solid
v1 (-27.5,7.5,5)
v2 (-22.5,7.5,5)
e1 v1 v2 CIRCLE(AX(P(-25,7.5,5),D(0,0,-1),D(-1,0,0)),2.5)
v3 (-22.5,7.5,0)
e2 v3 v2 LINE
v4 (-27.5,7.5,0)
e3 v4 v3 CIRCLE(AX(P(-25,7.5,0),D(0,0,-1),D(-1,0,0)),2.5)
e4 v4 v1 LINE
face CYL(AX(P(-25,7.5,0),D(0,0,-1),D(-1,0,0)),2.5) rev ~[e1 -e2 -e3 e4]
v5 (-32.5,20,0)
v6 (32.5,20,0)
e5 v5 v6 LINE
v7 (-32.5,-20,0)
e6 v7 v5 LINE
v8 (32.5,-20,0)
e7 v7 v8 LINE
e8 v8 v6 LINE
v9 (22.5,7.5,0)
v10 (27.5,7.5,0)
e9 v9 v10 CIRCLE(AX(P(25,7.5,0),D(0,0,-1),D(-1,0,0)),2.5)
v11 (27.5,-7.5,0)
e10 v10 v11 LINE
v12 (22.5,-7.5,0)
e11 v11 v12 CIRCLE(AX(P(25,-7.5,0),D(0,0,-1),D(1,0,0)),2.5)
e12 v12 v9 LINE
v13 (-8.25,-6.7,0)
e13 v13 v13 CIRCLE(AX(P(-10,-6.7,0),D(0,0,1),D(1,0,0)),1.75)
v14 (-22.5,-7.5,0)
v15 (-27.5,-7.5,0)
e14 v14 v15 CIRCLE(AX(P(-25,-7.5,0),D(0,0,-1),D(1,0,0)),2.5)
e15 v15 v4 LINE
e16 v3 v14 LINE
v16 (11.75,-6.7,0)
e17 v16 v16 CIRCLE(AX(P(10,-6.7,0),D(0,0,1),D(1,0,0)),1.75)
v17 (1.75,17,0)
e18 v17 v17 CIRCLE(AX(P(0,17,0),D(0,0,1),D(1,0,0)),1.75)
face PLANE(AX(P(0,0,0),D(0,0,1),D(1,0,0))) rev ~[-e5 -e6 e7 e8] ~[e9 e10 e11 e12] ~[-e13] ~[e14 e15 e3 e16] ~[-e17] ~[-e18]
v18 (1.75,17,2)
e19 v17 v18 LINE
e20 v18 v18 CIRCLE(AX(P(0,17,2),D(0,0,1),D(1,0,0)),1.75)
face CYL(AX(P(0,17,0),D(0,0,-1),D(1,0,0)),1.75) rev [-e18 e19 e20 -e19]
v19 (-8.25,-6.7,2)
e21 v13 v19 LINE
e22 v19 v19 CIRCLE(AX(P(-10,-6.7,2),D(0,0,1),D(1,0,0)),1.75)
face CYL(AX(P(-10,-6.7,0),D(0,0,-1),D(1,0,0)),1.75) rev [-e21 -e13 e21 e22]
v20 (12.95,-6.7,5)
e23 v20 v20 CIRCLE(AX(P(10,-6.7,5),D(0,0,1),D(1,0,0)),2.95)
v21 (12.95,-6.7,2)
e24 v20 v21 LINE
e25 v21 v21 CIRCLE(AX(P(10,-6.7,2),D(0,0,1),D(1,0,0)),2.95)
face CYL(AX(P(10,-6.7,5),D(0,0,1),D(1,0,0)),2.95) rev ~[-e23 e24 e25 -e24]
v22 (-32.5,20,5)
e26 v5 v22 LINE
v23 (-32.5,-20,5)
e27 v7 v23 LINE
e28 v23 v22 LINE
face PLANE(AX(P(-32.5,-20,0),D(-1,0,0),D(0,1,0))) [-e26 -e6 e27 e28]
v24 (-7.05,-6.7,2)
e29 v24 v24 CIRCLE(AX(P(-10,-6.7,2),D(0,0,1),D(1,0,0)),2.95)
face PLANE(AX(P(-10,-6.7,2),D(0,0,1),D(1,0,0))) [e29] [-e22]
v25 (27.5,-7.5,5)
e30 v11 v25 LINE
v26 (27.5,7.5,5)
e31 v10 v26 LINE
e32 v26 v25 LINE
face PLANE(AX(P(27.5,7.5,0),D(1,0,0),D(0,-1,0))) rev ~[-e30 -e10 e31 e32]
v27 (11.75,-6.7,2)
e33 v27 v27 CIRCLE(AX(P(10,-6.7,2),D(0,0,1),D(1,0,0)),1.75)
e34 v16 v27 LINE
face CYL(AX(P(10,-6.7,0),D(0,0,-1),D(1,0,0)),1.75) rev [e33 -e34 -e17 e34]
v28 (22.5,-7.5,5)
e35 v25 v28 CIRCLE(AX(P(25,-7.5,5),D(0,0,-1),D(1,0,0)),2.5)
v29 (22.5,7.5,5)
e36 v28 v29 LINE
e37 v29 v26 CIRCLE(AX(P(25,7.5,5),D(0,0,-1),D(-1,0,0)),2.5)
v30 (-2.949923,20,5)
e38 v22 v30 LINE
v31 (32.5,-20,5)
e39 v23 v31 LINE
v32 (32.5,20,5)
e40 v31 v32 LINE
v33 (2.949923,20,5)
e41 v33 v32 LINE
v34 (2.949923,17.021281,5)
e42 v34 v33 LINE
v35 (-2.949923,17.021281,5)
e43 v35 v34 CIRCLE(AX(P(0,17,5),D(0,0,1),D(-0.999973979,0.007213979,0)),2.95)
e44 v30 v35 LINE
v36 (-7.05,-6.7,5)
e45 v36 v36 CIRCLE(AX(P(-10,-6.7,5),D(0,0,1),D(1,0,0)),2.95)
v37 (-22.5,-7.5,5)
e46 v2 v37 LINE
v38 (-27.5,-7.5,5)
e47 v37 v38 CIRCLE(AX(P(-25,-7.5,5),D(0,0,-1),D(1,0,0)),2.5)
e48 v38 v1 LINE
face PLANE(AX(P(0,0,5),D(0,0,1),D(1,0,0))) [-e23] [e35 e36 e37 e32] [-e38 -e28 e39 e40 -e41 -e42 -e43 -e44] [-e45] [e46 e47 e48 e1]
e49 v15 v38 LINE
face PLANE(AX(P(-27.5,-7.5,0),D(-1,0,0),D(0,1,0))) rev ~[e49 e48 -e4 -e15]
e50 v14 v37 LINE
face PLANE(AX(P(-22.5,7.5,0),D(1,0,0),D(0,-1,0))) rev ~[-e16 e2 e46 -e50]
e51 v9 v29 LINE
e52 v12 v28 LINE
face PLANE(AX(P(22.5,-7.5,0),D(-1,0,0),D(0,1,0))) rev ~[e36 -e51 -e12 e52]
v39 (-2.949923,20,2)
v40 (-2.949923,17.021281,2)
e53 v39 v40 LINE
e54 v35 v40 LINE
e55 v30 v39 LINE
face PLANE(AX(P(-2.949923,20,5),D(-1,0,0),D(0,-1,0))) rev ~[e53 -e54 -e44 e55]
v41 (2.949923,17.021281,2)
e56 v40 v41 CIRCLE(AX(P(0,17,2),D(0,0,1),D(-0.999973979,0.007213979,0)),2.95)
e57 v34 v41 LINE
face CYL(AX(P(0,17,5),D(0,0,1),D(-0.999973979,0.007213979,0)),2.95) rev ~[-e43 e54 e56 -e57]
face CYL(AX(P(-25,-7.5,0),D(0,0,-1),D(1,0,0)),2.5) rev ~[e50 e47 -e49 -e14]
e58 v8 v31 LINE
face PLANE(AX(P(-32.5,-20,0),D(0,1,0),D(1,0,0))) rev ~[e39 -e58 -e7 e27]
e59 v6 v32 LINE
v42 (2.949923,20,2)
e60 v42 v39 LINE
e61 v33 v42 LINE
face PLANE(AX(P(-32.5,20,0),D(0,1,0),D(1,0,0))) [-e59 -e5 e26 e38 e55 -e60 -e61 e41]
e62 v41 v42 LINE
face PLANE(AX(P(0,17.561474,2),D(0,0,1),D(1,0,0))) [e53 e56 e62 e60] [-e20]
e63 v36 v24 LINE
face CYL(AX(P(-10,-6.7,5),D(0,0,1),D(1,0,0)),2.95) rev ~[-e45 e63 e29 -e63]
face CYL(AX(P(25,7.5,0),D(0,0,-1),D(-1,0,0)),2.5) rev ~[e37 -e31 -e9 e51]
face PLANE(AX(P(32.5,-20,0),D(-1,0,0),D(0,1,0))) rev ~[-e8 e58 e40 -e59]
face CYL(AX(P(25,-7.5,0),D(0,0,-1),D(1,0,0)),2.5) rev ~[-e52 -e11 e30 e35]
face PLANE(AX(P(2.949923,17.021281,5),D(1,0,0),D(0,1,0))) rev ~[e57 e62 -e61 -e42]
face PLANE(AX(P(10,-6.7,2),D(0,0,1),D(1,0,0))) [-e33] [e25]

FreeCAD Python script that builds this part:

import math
import FreeCAD as App
import Part
import Sketcher
from FreeCAD import Vector


def add_polygon(sketch, points):
    """Adds a closed chain of lines whose ends are joined by coincident constraints."""
    first, n = sketch.GeometryCount, len(points)
    for a, b in zip(points, points[1:] + points[:1]):
        sketch.addGeometry(Part.LineSegment(App.Vector(*a, 0), App.Vector(*b, 0)), False)
    for i in range(n):
        sketch.addConstraint(Sketcher.Constraint("Coincident", first + i, 2, first + (i + 1) % n, 1))

doc = App.newDocument("Part")
body = doc.addObject("PartDesign::Body", "Body")

# Sketch on XY plane
sketch1 = body.newObject("Sketcher::SketchObject", "Sketch")
sketch1.AttachmentSupport = (doc.getObject("XY_Plane"), [""])
sketch1.MapMode = "FlatFace"
add_polygon(sketch1, [(-32.5, 20), (-32.5, -20), (32.5, -20), (32.5, 20)])  # lines 0-3
sketch1.addGeometry(Part.Circle(Vector(-10, -6.7, 0), Vector(0, 0, 1), 1.75), False)  # 4
sketch1.addGeometry(Part.LineSegment(Vector(-22.5, 7.5, 0), Vector(-22.5, -7.5, 0)), False)  # 5
sketch1.addGeometry(Part.ArcOfCircle(Part.Circle(Vector(-25, -7.5, 0), Vector(0, 0, 1), 2.5), math.radians(180), math.radians(360)), False)  # 6
sketch1.addGeometry(Part.LineSegment(Vector(-27.5, -7.5, 0), Vector(-27.5, 7.5, 0)), False)  # 7
sketch1.addGeometry(Part.ArcOfCircle(Part.Circle(Vector(-25, 7.5, 0), Vector(0, 0, 1), 2.5), math.radians(0), math.radians(180)), False)  # 8
sketch1.addGeometry(Part.Circle(Vector(10, -6.7, 0), Vector(0, 0, 1), 1.75), False)  # 9
sketch1.addGeometry(Part.LineSegment(Vector(27.5, 7.5, 0), Vector(27.5, -7.5, 0)), False)  # 10
sketch1.addGeometry(Part.ArcOfCircle(Part.Circle(Vector(25, -7.5, 0), Vector(0, 0, 1), 2.5), math.radians(180), math.radians(360)), False)  # 11
sketch1.addGeometry(Part.LineSegment(Vector(22.5, -7.5, 0), Vector(22.5, 7.5, 0)), False)  # 12
sketch1.addGeometry(Part.ArcOfCircle(Part.Circle(Vector(25, 7.5, 0), Vector(0, 0, 1), 2.5), math.radians(0), math.radians(180)), False)  # 13
sketch1.addGeometry(Part.Circle(Vector(0, 17, 0), Vector(0, 0, 1), 1.75), False)  # 14
sketch1.addConstraint([
    Sketcher.Constraint("Tangent", 5, 2, 6, 2),
    Sketcher.Constraint("Tangent", 6, 1, 7, 1),
    Sketcher.Constraint("Tangent", 7, 2, 8, 2),
    Sketcher.Constraint("Tangent", 8, 1, 5, 1),
    Sketcher.Constraint("Tangent", 10, 2, 11, 2),
    Sketcher.Constraint("Tangent", 11, 1, 12, 1),
    Sketcher.Constraint("Tangent", 12, 2, 13, 2),
    Sketcher.Constraint("Tangent", 13, 1, 10, 1),
    Sketcher.Constraint("Vertical", 0),
    Sketcher.Constraint("Horizontal", 1),
    Sketcher.Constraint("Vertical", 2),
    Sketcher.Constraint("Horizontal", 3),
    Sketcher.Constraint("Vertical", 5),
    Sketcher.Constraint("Vertical", 7),
    Sketcher.Constraint("Vertical", 10),
    Sketcher.Constraint("Vertical", 12),
    Sketcher.Constraint("Equal", 4, 9),
    Sketcher.Constraint("Equal", 8, 11),
    Sketcher.Constraint("Equal", 9, 14),
    Sketcher.Constraint("Symmetric", 8, 3, 11, 3, -1, 1),
    Sketcher.Constraint("Symmetric", 0, 2, 2, 2, -1, 1),
    Sketcher.Constraint("Symmetric", 4, 3, 9, 3, -2),
    Sketcher.Constraint("PointOnObject", 14, 3, -2),
    Sketcher.Constraint("Horizontal", 6, 3, 11, 3),
    Sketcher.Constraint("Horizontal", 8, 3, 13, 3),
    Sketcher.Constraint("Diameter", 4, 3.5),
    Sketcher.Constraint("Radius", 6, 2.5),
    Sketcher.Constraint("DistanceX", 1, 1, 1, 2, 65.0),
    Sketcher.Constraint("DistanceY", 0, 2, 0, 1, 40.0),
    Sketcher.Constraint("DistanceY", 5, 2, 5, 1, 15.0),
    Sketcher.Constraint("DistanceX", 4, 3, -1, 1, 10.0),
    Sketcher.Constraint("DistanceX", 6, 3, -1, 1, 25.0),
    Sketcher.Constraint("DistanceY", -1, 1, 14, 3, 17.0),
    Sketcher.Constraint("DistanceY", 4, 3, -1, 1, 6.7),
])
pad1 = body.newObject("PartDesign::Pad", "Pad")
pad1.Profile = sketch1
pad1.Length = 5

# Sketch on XY plane
sketch2 = body.newObject("Sketcher::SketchObject", "Sketch001")
sketch2.AttachmentSupport = (doc.getObject("XY_Plane"), [""])
sketch2.MapMode = "FlatFace"
sketch2.AttachmentOffset = App.Placement(Vector(0, 0, 5), App.Rotation())
sketch2.addGeometry([
    Part.Circle(Vector(10, -6.7, 0), Vector(0, 0, 1), 2.95),  # 0
    Part.Circle(Vector(10, -6.7, 0), Vector(0, 0, 1), 1.75),  # 1
    Part.Circle(Vector(-10, -6.7, 0), Vector(0, 0, 1), 2.95),  # 2
    Part.Circle(Vector(-10, -6.7, 0), Vector(0, 0, 1), 1.75),  # 3
    Part.LineSegment(Vector(-2.949923, 20, 0), Vector(-2.949923, 17.021281, 0)),  # 4
    Part.ArcOfCircle(Part.Circle(Vector(0, 17, 0), Vector(0, 0, 1), 2.95), math.radians(179.586666), math.radians(360.413334)),  # 5
    Part.LineSegment(Vector(2.949923, 17.021281, 0), Vector(2.949923, 20, 0)),  # 6
    Part.LineSegment(Vector(2.949923, 20, 0), Vector(-2.949923, 20, 0)),  # 7
    Part.Circle(Vector(0, 17, 0), Vector(0, 0, 1), 1.75),  # 8
], False)
sketch2.addConstraint([
    Sketcher.Constraint("Coincident", 4, 2, 5, 1),
    Sketcher.Constraint("Coincident", 5, 2, 6, 1),
    Sketcher.Constraint("Coincident", 6, 2, 7, 1),
    Sketcher.Constraint("Coincident", 7, 2, 4, 1),
    Sketcher.Constraint("Vertical", 4),
    Sketcher.Constraint("Vertical", 6),
    Sketcher.Constraint("Horizontal", 7),
    Sketcher.Constraint("Coincident", 1, 3, 0, 3),
    Sketcher.Constraint("Coincident", 3, 3, 2, 3),
    Sketcher.Constraint("Coincident", 8, 3, 5, 3),
    Sketcher.Constraint("Equal", 0, 2),
    Sketcher.Constraint("Equal", 1, 3),
    Sketcher.Constraint("Equal", 2, 5),
    Sketcher.Constraint("Equal", 3, 8),
    Sketcher.Constraint("Symmetric", 0, 3, 2, 3, -2),
    Sketcher.Constraint("Symmetric", 4, 2, 5, 2, -2),
    Sketcher.Constraint("Diameter", 0, 5.9),
    Sketcher.Constraint("Diameter", 1, 3.5),
    Sketcher.Constraint("DistanceX", -1, 1, 0, 3, 10.0),
    Sketcher.Constraint("DistanceY", -1, 1, 5, 3, 17.0),
    Sketcher.Constraint("DistanceY", -1, 1, 6, 2, 20.0),
    Sketcher.Constraint("DistanceY", 0, 3, -1, 1, 6.7),
    Sketcher.Constraint("DistanceY", 4, 2, 4, 1, 2.978719),
])
pocket1 = body.newObject("PartDesign::Pocket", "Pocket")
pocket1.Profile = sketch2
pocket1.Length = 3

doc.recompute()
